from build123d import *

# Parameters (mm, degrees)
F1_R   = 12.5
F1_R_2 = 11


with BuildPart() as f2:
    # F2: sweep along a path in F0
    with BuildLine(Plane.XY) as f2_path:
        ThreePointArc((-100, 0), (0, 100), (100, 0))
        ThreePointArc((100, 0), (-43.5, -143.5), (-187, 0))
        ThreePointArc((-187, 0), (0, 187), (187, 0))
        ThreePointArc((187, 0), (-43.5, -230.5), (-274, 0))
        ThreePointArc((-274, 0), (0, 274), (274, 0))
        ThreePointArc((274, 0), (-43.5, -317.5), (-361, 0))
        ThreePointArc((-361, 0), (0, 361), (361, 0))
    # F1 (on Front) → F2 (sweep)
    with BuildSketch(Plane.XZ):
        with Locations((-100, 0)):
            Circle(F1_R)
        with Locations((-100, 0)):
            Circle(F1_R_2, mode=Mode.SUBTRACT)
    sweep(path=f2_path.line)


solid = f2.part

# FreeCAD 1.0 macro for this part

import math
import FreeCAD as App
import Part
import Sketcher

doc = App.newDocument("Part")
body = doc.addObject("PartDesign::Body", "Body")

# Sketch on XZ plane
sketch1 = body.newObject("Sketcher::SketchObject", "Sketch")
sketch1.AttachmentSupport = (doc.getObject("XZ_Plane"), [""])
sketch1.MapMode = "FlatFace"
sketch1.addGeometry(Part.Circle(App.Vector(-100, 0, 0), App.Vector(0, 0, 1), 12), False)
sketch1.addGeometry(Part.Circle(App.Vector(-100, 0, 0), App.Vector(0, 0, 1), 11), False)
sketch1.addConstraint(Sketcher.Constraint("Coincident", 1, 3, 0, 3))
sketch1.addConstraint(Sketcher.Constraint("PointOnObject", 0, 3, -1))
sketch1.addConstraint(Sketcher.Constraint("Diameter", 0, 25.0))
sketch1.addConstraint(Sketcher.Constraint("Diameter", 1, 22.0))
sketch1.addConstraint(Sketcher.Constraint("DistanceX", 0, 3, -1, 1, 100.0))

# Sketch on XY plane
sketch2 = body.newObject("Sketcher::SketchObject", "Sketch001")
sketch2.AttachmentSupport = (doc.getObject("XY_Plane"), [""])
sketch2.MapMode = "FlatFace"
sketch2.addGeometry(Part.ArcOfCircle(Part.Circle(App.Vector(0, 0, 0), App.Vector(0, 0, 1), 100), math.radians(0), math.radians(180)), False)
sketch2.addGeometry(Part.ArcOfCircle(Part.Circle(App.Vector(-44, 0, 0), App.Vector(0, 0, 1), 144), math.radians(180), math.radians(360)), False)
sketch2.addGeometry(Part.ArcOfCircle(Part.Circle(App.Vector(0, 0, 0), App.Vector(0, 0, 1), 187), math.radians(0), math.radians(180)), False)
sketch2.addGeometry(Part.ArcOfCircle(Part.Circle(App.Vector(-44, 0, 0), App.Vector(0, 0, 1), 230), math.radians(180), math.radians(360)), False)
sketch2.addGeometry(Part.ArcOfCircle(Part.Circle(App.Vector(0, 0, 0), App.Vector(0, 0, 1), 274), math.radians(0), math.radians(180)), False)
sketch2.addGeometry(Part.ArcOfCircle(Part.Circle(App.Vector(-44, 0, 0), App.Vector(0, 0, 1), 318), math.radians(180), math.radians(360)), False)
sketch2.addGeometry(Part.ArcOfCircle(Part.Circle(App.Vector(0, 0, 0), App.Vector(0, 0, 1), 361), math.radians(0), math.radians(180)), False)
sketch2.addConstraint(Sketcher.Constraint("Tangent", 0, 1, 1, 2))
sketch2.addConstraint(Sketcher.Constraint("Tangent", 1, 1, 2, 2))
sketch2.addConstraint(Sketcher.Constraint("Tangent", 2, 1, 3, 2))
sketch2.addConstraint(Sketcher.Constraint("Tangent", 3, 1, 4, 2))
sketch2.addConstraint(Sketcher.Constraint("Tangent", 4, 1, 5, 2))
sketch2.addConstraint(Sketcher.Constraint("Tangent", 5, 1, 6, 2))
sketch2.addConstraint(Sketcher.Constraint("Coincident", 0, 3, -1, 1))
sketch2.addConstraint(Sketcher.Constraint("Coincident", 2, 3, -1, 1))
sketch2.addConstraint(Sketcher.Constraint("Coincident", 4, 3, -1, 1))
sketch2.addConstraint(Sketcher.Constraint("Coincident", 6, 3, -1, 1))
sketch2.addConstraint(Sketcher.Constraint("Coincident", 3, 3, 1, 3))
sketch2.addConstraint(Sketcher.Constraint("Coincident", 5, 3, 1, 3))
sketch2.addConstraint(Sketcher.Constraint("PointOnObject", 1, 3, -1))
sketch2.addConstraint(Sketcher.Constraint("PointOnObject", 0, 2, -1))
sketch2.addConstraint(Sketcher.Constraint("PointOnObject", 6, 1, -1))
sketch2.addConstraint(Sketcher.Constraint("Radius", 0, 100.0))
sketch2.addConstraint(Sketcher.Constraint("Radius", 2, 187.0))
doc.recompute()

additivepipe = body.newObject("PartDesign::AdditivePipe", "AdditivePipe")
additivepipe.Profile = sketch1
additivepipe.Spine = (sketch2, ["Edge1", "Edge2", "Edge3", "Edge4", "Edge5", "Edge6", "Edge7"])

doc.recompute()
